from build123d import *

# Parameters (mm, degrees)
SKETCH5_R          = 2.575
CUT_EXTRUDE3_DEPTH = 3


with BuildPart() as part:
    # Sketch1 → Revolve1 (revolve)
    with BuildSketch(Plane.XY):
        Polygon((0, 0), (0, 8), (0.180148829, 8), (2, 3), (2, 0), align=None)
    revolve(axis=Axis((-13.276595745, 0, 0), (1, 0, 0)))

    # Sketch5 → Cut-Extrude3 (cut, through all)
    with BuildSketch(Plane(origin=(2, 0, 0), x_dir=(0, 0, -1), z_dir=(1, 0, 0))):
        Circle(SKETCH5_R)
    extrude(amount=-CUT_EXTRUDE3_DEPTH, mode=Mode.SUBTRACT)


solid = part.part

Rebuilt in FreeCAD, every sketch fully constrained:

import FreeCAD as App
import Part
import Sketcher

V = App.Vector
Q = App.Units.Quantity


def add_polygon(sketch, points):
    """Adds a closed chain of lines whose ends are joined by coincident constraints."""
    first, n = sketch.GeometryCount, len(points)
    for a, b in zip(points, points[1:] + points[:1]):
        sketch.addGeometry(Part.LineSegment(App.Vector(*a, 0), App.Vector(*b, 0)), False)
    for i in range(n):
        sketch.addConstraint(Sketcher.Constraint("Coincident", first + i, 2, first + (i + 1) % n, 1))

doc = App.newDocument("Part")
body = doc.addObject("PartDesign::Body", "Body")

# Sketch on XY plane
sketch1 = doc.addObject("Sketcher::SketchObject", "Sketch")
body.addObject(sketch1)
sketch1.AttachmentSupport = (doc.XY_Plane, [""])
sketch1.MapMode = "FlatFace"
add_polygon(sketch1, [(0, 8), (0, 0), (2, 0), (2, 3), (0.18, 8)])  # lines 0-4
sketch1.addConstraint(Sketcher.Constraint("Vertical", 0))
sketch1.addConstraint(Sketcher.Constraint("Horizontal", 1))
sketch1.addConstraint(Sketcher.Constraint("Vertical", 2))
sketch1.addConstraint(Sketcher.Constraint("Horizontal", 4))
sketch1.addConstraint(Sketcher.Constraint("Coincident", 0, 2, -1, 1))
sketch1.addConstraint(Sketcher.Constraint("DistanceX", 1, 1, 1, 2, Q("2 mm")))
sketch1.addConstraint(Sketcher.Constraint("DistanceY", 0, 2, 0, 1, Q("8 mm")))
sketch1.addConstraint(Sketcher.Constraint("DistanceY", 2, 1, 2, 2, Q("3 mm")))
sketch1.addConstraint(Sketcher.Constraint("Angle", 3, Q("110 deg")))
revolution = doc.addObject("PartDesign::Revolution", "Revolution")
body.addObject(revolution)
revolution.Profile = sketch1
revolution.ReferenceAxis = (sketch1, ["H_Axis"])
revolution.Angle = 360

# Sketch on YZ plane
sketch2 = doc.addObject("Sketcher::SketchObject", "Sketch001")
body.addObject(sketch2)
sketch2.AttachmentSupport = (doc.YZ_Plane, [""])
sketch2.MapMode = "FlatFace"
sketch2.AttachmentOffset = App.Placement(V(0, 0, 2), App.Rotation())
sketch2.addGeometry(Part.Circle(V(0, 0, 0), V(0, 0, 1), 2.6), False)
sketch2.addConstraint(Sketcher.Constraint("Coincident", 0, 3, -1, 1))
sketch2.addConstraint(Sketcher.Constraint("Diameter", 0, Q("5.15 mm")))
pocket1 = doc.addObject("PartDesign::Pocket", "Pocket")
body.addObject(pocket1)
pocket1.Profile = sketch2
pocket1.Type = "ThroughAll"

doc.recompute()
